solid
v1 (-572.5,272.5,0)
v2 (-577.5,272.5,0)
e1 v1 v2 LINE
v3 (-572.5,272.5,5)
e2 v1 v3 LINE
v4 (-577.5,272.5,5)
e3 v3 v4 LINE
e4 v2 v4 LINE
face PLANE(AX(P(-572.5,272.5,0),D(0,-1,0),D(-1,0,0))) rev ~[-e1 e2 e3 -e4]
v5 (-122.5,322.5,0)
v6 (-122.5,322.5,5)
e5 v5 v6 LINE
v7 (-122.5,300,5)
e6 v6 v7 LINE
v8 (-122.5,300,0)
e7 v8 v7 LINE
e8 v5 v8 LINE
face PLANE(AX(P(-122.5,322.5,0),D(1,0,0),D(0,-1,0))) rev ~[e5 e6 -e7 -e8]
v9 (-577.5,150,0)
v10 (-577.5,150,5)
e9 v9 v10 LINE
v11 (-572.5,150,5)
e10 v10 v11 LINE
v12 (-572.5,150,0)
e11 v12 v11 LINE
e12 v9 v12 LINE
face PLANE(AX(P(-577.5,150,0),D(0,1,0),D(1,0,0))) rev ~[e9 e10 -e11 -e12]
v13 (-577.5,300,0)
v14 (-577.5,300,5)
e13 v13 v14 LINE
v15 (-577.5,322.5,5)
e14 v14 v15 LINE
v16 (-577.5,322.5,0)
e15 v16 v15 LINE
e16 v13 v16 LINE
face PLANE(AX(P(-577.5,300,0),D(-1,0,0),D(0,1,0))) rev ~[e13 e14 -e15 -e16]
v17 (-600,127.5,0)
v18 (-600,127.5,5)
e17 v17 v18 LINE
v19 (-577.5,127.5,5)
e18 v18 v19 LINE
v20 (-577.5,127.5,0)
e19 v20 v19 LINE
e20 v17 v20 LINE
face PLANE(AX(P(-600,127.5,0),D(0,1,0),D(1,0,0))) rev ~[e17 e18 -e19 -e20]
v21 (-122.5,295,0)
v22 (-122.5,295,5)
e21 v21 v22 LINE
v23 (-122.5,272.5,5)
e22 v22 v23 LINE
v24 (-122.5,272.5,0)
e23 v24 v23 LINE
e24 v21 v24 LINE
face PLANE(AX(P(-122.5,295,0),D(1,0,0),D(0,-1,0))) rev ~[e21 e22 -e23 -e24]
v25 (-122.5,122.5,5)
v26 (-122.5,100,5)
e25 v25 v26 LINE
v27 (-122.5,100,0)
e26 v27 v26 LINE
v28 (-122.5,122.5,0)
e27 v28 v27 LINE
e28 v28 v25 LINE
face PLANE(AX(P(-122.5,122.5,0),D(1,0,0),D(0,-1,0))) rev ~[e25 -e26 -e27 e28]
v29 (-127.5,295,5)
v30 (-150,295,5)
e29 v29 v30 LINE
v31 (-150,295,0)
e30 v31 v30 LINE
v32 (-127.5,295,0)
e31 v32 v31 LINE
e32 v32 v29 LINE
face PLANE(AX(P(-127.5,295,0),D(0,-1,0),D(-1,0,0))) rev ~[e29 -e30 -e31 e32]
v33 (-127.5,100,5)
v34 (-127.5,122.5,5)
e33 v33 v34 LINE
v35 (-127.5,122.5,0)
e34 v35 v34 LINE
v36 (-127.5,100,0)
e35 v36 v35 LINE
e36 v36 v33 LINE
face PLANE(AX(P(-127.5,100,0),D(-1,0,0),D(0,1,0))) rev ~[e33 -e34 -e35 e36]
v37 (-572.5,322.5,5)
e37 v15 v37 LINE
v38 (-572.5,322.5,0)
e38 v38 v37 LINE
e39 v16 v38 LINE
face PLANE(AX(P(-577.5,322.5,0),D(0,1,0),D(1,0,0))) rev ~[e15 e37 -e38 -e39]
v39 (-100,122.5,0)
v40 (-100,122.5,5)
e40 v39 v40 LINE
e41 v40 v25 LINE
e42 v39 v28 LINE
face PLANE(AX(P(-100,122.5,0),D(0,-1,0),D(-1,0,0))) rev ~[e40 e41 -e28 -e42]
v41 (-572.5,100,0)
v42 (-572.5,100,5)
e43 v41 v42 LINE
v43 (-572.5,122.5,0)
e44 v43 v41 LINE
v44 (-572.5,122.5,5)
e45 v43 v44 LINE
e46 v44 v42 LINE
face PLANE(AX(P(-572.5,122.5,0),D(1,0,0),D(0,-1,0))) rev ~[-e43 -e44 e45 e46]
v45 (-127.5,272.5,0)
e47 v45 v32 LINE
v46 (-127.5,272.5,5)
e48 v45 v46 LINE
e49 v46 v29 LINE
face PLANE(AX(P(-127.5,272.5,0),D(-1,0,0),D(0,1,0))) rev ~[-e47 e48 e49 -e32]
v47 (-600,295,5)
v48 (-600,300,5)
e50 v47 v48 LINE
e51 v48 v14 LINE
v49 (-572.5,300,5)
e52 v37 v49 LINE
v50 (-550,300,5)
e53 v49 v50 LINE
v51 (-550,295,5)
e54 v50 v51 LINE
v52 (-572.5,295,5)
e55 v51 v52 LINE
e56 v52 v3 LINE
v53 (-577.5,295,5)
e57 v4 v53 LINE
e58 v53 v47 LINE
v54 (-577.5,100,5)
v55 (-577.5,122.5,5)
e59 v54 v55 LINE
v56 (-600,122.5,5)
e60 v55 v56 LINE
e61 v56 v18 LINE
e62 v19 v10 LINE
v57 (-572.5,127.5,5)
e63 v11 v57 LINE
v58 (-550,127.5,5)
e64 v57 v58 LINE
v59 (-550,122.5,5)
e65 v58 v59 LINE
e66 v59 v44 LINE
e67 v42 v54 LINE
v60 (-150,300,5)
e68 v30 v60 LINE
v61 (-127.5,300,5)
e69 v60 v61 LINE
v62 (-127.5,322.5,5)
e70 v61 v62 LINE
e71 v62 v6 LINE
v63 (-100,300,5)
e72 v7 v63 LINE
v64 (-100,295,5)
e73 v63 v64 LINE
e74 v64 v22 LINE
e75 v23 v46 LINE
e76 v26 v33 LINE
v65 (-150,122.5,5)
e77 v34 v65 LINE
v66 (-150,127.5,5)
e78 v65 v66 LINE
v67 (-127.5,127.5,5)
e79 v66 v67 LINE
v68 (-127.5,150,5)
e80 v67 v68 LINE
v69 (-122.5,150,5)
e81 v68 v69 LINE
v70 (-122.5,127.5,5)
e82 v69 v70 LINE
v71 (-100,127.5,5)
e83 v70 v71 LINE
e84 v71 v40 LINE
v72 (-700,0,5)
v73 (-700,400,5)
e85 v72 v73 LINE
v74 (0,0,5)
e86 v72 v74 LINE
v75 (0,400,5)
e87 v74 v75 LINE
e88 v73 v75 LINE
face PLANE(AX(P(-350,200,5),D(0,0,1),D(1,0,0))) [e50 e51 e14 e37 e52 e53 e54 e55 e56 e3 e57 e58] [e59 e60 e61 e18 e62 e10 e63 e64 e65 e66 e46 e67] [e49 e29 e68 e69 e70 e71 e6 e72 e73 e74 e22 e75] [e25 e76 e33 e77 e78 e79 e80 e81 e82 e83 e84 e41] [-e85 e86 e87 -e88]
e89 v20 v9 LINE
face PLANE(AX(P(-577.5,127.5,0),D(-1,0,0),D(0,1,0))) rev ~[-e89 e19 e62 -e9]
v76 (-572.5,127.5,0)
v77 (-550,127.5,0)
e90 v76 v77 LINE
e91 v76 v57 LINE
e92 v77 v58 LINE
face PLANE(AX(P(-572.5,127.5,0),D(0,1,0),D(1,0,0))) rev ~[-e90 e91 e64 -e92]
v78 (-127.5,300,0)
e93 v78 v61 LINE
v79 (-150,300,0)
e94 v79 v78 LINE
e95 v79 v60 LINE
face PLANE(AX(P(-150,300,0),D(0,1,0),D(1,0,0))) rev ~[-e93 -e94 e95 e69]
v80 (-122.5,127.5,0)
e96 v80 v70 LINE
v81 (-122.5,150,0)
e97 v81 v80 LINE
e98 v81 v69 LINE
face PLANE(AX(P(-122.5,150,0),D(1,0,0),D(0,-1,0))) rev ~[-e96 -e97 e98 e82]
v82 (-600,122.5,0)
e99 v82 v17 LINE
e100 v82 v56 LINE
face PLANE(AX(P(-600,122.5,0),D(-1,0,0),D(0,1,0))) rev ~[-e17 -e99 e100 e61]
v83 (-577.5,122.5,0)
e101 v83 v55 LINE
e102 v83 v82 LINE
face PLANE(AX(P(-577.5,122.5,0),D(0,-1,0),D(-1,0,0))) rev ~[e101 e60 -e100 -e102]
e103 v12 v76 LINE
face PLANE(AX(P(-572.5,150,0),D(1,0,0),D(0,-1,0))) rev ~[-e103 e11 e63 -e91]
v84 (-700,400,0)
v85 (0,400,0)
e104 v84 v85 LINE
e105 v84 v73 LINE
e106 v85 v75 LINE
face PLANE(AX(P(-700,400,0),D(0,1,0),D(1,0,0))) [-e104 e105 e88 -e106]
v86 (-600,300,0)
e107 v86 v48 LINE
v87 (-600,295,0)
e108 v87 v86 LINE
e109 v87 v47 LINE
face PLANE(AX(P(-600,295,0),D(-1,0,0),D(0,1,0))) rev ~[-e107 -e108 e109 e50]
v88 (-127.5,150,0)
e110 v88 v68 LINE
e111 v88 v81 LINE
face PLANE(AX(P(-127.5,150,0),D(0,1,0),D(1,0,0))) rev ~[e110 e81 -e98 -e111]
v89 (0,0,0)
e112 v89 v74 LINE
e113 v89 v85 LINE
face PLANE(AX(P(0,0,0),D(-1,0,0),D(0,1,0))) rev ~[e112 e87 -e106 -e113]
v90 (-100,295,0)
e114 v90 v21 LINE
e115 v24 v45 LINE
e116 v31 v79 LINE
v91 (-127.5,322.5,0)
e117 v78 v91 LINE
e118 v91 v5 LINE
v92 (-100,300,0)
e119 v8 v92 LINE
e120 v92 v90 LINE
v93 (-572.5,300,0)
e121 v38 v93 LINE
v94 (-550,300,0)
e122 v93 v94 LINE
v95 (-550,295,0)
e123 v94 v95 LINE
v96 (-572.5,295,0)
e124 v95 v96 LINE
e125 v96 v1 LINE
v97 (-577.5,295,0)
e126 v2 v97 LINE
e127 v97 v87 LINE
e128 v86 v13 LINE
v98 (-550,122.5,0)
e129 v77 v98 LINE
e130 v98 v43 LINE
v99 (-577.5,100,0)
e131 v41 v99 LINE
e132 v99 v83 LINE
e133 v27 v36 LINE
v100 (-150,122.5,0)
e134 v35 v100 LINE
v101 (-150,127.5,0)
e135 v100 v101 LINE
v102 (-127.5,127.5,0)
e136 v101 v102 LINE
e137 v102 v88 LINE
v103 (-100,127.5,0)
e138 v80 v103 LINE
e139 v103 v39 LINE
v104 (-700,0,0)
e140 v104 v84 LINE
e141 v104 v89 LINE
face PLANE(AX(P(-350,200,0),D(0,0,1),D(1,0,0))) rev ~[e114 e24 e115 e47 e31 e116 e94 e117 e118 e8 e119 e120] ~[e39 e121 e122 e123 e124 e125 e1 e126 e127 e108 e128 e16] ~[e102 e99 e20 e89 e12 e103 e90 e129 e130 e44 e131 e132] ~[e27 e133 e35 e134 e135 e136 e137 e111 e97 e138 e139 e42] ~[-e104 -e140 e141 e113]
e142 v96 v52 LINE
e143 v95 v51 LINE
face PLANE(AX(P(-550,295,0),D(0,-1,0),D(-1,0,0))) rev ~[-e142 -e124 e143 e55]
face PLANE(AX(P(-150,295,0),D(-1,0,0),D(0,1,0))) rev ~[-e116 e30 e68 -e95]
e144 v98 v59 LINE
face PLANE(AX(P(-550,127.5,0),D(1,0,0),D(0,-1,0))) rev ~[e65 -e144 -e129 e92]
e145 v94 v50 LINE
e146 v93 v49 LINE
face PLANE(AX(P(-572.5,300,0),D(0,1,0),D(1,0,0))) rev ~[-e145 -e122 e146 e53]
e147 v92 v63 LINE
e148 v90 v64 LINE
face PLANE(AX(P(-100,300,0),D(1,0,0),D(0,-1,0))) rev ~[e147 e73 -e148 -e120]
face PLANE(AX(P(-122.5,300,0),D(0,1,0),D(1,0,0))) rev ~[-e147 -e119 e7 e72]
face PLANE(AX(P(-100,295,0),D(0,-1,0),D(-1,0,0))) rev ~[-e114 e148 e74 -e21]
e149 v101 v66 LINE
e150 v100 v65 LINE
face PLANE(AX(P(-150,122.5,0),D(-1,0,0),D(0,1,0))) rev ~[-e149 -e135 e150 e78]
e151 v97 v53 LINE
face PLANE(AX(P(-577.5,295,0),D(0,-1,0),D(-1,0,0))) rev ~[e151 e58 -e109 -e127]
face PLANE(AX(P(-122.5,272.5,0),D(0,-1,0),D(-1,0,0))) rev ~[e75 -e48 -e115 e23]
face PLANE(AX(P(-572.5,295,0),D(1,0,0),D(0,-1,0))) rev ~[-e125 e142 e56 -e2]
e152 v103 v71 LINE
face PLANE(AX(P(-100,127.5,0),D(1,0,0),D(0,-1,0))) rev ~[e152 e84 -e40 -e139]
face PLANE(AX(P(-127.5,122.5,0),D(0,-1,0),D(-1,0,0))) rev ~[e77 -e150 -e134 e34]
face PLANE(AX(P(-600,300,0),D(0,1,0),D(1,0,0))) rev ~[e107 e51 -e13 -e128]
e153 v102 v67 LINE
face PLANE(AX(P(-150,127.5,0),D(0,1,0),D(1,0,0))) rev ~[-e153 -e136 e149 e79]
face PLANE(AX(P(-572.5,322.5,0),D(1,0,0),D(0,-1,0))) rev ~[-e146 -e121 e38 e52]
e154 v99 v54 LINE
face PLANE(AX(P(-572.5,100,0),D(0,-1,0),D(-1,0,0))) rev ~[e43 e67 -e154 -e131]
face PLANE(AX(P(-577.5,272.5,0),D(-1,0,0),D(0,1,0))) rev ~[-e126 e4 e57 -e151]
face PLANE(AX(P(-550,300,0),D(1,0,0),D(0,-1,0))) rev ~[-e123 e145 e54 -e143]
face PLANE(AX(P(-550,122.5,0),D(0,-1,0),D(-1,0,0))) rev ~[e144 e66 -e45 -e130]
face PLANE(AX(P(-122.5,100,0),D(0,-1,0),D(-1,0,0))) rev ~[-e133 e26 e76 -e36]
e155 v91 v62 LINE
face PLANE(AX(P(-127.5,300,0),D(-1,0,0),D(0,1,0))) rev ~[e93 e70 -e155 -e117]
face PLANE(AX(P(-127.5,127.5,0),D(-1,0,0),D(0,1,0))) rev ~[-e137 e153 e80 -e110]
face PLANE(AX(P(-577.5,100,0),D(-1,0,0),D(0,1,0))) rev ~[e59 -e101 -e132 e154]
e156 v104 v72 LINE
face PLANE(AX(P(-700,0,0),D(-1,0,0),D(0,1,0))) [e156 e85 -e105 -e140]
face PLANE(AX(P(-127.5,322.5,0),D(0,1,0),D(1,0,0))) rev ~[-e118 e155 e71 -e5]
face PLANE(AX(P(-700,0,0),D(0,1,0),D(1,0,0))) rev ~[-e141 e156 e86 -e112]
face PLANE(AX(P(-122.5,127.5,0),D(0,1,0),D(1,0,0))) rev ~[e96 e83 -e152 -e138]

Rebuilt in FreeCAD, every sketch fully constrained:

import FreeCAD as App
import Part
import Sketcher


def add_polygon(sketch, points):
    """Adds a closed chain of lines whose ends are joined by coincident constraints."""
    first, n = sketch.GeometryCount, len(points)
    for a, b in zip(points, points[1:] + points[:1]):
        sketch.addGeometry(Part.LineSegment(App.Vector(*a, 0), App.Vector(*b, 0)), False)
    for i in range(n):
        sketch.addConstraint(Sketcher.Constraint("Coincident", first + i, 2, first + (i + 1) % n, 1))

doc = App.newDocument("Part")
params = doc.addObject("Spreadsheet::Sheet", "Params")
for row, (alias, value) in enumerate([
    ("sketch1_width", "700 mm"),
    ("sketch1_width2", "5 mm"),
    ("sketch1_height", "400 mm"),
    ("sketch1_width3", "22.5 mm"),
    ("pad1_length", "5 mm"),
], start=1):
    params.set(f"A{row}", alias)
    params.set(f"B{row}", "=" + value)
    params.setAlias(f"B{row}", alias)

body = doc.addObject("PartDesign::Body", "Body")

# Sketch on XY plane
sketch1 = body.newObject("Sketcher::SketchObject", "Sketch")
sketch1.AttachmentSupport = (doc.getObject("XY_Plane"), [""])
sketch1.MapMode = "FlatFace"
add_polygon(sketch1, [(-700, 400), (-700, 0), (0, 0), (0, 400)])  # lines 0-3
add_polygon(sketch1, [(-578, 122), (-600, 122), (-600, 128), (-578, 128), (-578, 150), (-572, 150), (-572, 128), (-550, 128), (-550, 122), (-572, 122), (-572, 100), (-578, 100)])  # lines 4-15
add_polygon(sketch1, [(-128, 122), (-150, 122), (-150, 128), (-128, 128), (-128, 150), (-122, 150), (-122, 128), (-100, 128), (-100, 122), (-122, 122), (-122, 100), (-128, 100)])  # lines 16-27
add_polygon(sketch1, [(-578, 295), (-600, 295), (-600, 300), (-578, 300), (-578, 322), (-572, 322), (-572, 300), (-550, 300), (-550, 295), (-572, 295), (-572, 272), (-578, 272)])  # lines 28-39
add_polygon(sketch1, [(-128, 295), (-150, 295), (-150, 300), (-128, 300), (-128, 322), (-122, 322), (-122, 300), (-100, 300), (-100, 295), (-122, 295), (-122, 272), (-128, 272)])  # lines 40-51
sketch1.addConstraint(Sketcher.Constraint("Vertical", 0))
sketch1.addConstraint(Sketcher.Constraint("Horizontal", 1))
sketch1.addConstraint(Sketcher.Constraint("Vertical", 2))
sketch1.addConstraint(Sketcher.Constraint("Horizontal", 3))
sketch1.addConstraint(Sketcher.Constraint("Horizontal", 4))
sketch1.addConstraint(Sketcher.Constraint("Vertical", 5))
sketch1.addConstraint(Sketcher.Constraint("Horizontal", 6))
sketch1.addConstraint(Sketcher.Constraint("Vertical", 7))
sketch1.addConstraint(Sketcher.Constraint("Horizontal", 8))
sketch1.addConstraint(Sketcher.Constraint("Vertical", 9))
sketch1.addConstraint(Sketcher.Constraint("Horizontal", 10))
sketch1.addConstraint(Sketcher.Constraint("Vertical", 11))
sketch1.addConstraint(Sketcher.Constraint("Horizontal", 12))
sketch1.addConstraint(Sketcher.Constraint("Vertical", 13))
sketch1.addConstraint(Sketcher.Constraint("Horizontal", 14))
sketch1.addConstraint(Sketcher.Constraint("Vertical", 15))
sketch1.addConstraint(Sketcher.Constraint("Horizontal", 16))
sketch1.addConstraint(Sketcher.Constraint("Vertical", 17))
sketch1.addConstraint(Sketcher.Constraint("Horizontal", 18))
sketch1.addConstraint(Sketcher.Constraint("Vertical", 19))
sketch1.addConstraint(Sketcher.Constraint("Horizontal", 20))
sketch1.addConstraint(Sketcher.Constraint("Vertical", 21))
sketch1.addConstraint(Sketcher.Constraint("Horizontal", 22))
sketch1.addConstraint(Sketcher.Constraint("Vertical", 23))
sketch1.addConstraint(Sketcher.Constraint("Horizontal", 24))
sketch1.addConstraint(Sketcher.Constraint("Vertical", 25))
sketch1.addConstraint(Sketcher.Constraint("Horizontal", 26))
sketch1.addConstraint(Sketcher.Constraint("Vertical", 27))
sketch1.addConstraint(Sketcher.Constraint("Horizontal", 28))
sketch1.addConstraint(Sketcher.Constraint("Vertical", 29))
sketch1.addConstraint(Sketcher.Constraint("Horizontal", 30))
sketch1.addConstraint(Sketcher.Constraint("Vertical", 31))
sketch1.addConstraint(Sketcher.Constraint("Horizontal", 32))
sketch1.addConstraint(Sketcher.Constraint("Vertical", 33))
sketch1.addConstraint(Sketcher.Constraint("Horizontal", 34))
sketch1.addConstraint(Sketcher.Constraint("Vertical", 35))
sketch1.addConstraint(Sketcher.Constraint("Horizontal", 36))
sketch1.addConstraint(Sketcher.Constraint("Vertical", 37))
sketch1.addConstraint(Sketcher.Constraint("Horizontal", 38))
sketch1.addConstraint(Sketcher.Constraint("Vertical", 39))
sketch1.addConstraint(Sketcher.Constraint("Horizontal", 40))
sketch1.addConstraint(Sketcher.Constraint("Vertical", 41))
sketch1.addConstraint(Sketcher.Constraint("Horizontal", 42))
sketch1.addConstraint(Sketcher.Constraint("Vertical", 43))
sketch1.addConstraint(Sketcher.Constraint("Horizontal", 44))
sketch1.addConstraint(Sketcher.Constraint("Vertical", 45))
sketch1.addConstraint(Sketcher.Constraint("Horizontal", 46))
sketch1.addConstraint(Sketcher.Constraint("Vertical", 47))
sketch1.addConstraint(Sketcher.Constraint("Horizontal", 48))
sketch1.addConstraint(Sketcher.Constraint("Vertical", 49))
sketch1.addConstraint(Sketcher.Constraint("Horizontal", 50))
sketch1.addConstraint(Sketcher.Constraint("Vertical", 51))
sketch1.addConstraint(Sketcher.Constraint("Coincident", 1, 2, -1, 1))
sketch1.addConstraint(Sketcher.Constraint("Horizontal", 6, 2, 9, 2))
sketch1.addConstraint(Sketcher.Constraint("Horizontal", 4, 2, 11, 2))
sketch1.addConstraint(Sketcher.Constraint("Horizontal", 15, 2, 16, 2))
sketch1.addConstraint(Sketcher.Constraint("Horizontal", 10, 2, 17, 2))
sketch1.addConstraint(Sketcher.Constraint("Horizontal", 8, 2, 19, 2))
sketch1.addConstraint(Sketcher.Constraint("Horizontal", 18, 2, 21, 2))
sketch1.addConstraint(Sketcher.Constraint("Horizontal", 16, 2, 23, 2))
sketch1.addConstraint(Sketcher.Constraint("Horizontal", 14, 2, 25, 2))
sketch1.addConstraint(Sketcher.Constraint("Horizontal", 30, 2, 33, 2))
sketch1.addConstraint(Sketcher.Constraint("Horizontal", 28, 2, 35, 2))
sketch1.addConstraint(Sketcher.Constraint("Horizontal", 39, 2, 40, 2))
sketch1.addConstraint(Sketcher.Constraint("Horizontal", 34, 2, 41, 2))
sketch1.addConstraint(Sketcher.Constraint("Horizontal", 32, 2, 43, 2))
sketch1.addConstraint(Sketcher.Constraint("Horizontal", 42, 2, 45, 2))
sketch1.addConstraint(Sketcher.Constraint("Horizontal", 40, 2, 47, 2))
sketch1.addConstraint(Sketcher.Constraint("Horizontal", 38, 2, 49, 2))
sketch1.addConstraint(Sketcher.Constraint("Vertical", 9, 2, 12, 2))
sketch1.addConstraint(Sketcher.Constraint("Vertical", 7, 2, 14, 2))
sketch1.addConstraint(Sketcher.Constraint("Vertical", 21, 2, 24, 2))
sketch1.addConstraint(Sketcher.Constraint("Vertical", 19, 2, 26, 2))
sketch1.addConstraint(Sketcher.Constraint("Vertical", 5, 2, 28, 2))
sketch1.addConstraint(Sketcher.Constraint("Vertical", 15, 2, 30, 2))
sketch1.addConstraint(Sketcher.Constraint("Vertical", 13, 2, 32, 2))
sketch1.addConstraint(Sketcher.Constraint("Vertical", 11, 2, 34, 2))
sketch1.addConstraint(Sketcher.Constraint("Vertical", 33, 2, 36, 2))
sketch1.addConstraint(Sketcher.Constraint("Vertical", 31, 2, 38, 2))
sketch1.addConstraint(Sketcher.Constraint("Vertical", 17, 2, 40, 2))
sketch1.addConstraint(Sketcher.Constraint("Vertical", 27, 2, 42, 2))
sketch1.addConstraint(Sketcher.Constraint("Vertical", 25, 2, 44, 2))
sketch1.addConstraint(Sketcher.Constraint("Vertical", 23, 2, 46, 2))
sketch1.addConstraint(Sketcher.Constraint("Vertical", 45, 2, 48, 2))
sketch1.addConstraint(Sketcher.Constraint("Vertical", 43, 2, 50, 2))
sketch1.addConstraint(Sketcher.Constraint("Equal", 6, 10))
sketch1.addConstraint(Sketcher.Constraint("Equal", 12, 16))
sketch1.addConstraint(Sketcher.Constraint("Equal", 14, 20))
sketch1.addConstraint(Sketcher.Constraint("Equal", 18, 22))
sketch1.addConstraint(Sketcher.Constraint("Equal", 50, 5))
sketch1.addConstraint(Sketcher.Constraint("Equal", 48, 7))
sketch1.addConstraint(Sketcher.Constraint("Equal", 9, 13))
sketch1.addConstraint(Sketcher.Constraint("Equal", 23, 29))
sketch1.addConstraint(Sketcher.Constraint("Equal", 27, 31))
sketch1.addConstraint(Sketcher.Constraint("Equal", 33, 37))
sketch1.addConstraint(Sketcher.Constraint("DistanceX", 1, 1, 1, 2, 700.0))
sketch1.addConstraint(Sketcher.Constraint("DistanceX", 8, 1, 8, 2, 5.0))
sketch1.addConstraint(Sketcher.Constraint("DistanceY", 0, 2, 0, 1, 400.0))
sketch1.addConstraint(Sketcher.Constraint("DistanceX", 4, 2, 4, 1, 22.5))
sketch1.addConstraint(Sketcher.Constraint("DistanceX", 4, 2, -1, 1, 600.0))
sketch1.addConstraint(Sketcher.Constraint("DistanceY", -1, 1, 7, 2, 150.0))
sketch1.addConstraint(Sketcher.Constraint("DistanceX", 16, 2, -1, 1, 150.0))
sketch1.addConstraint(Sketcher.Constraint("DistanceY", -1, 1, 28, 2, 295.0))
sketch1.setExpression("Constraints[147]", "Params.sketch1_width")
sketch1.setExpression("Constraints[148]", "Params.sketch1_width2")
sketch1.setExpression("Constraints[149]", "Params.sketch1_height")
sketch1.setExpression("Constraints[150]", "Params.sketch1_width3")
pad1 = body.newObject("PartDesign::Pad", "Pad")
pad1.Profile = sketch1
pad1.setExpression("Length", "Params.pad1_length")

doc.recompute()
